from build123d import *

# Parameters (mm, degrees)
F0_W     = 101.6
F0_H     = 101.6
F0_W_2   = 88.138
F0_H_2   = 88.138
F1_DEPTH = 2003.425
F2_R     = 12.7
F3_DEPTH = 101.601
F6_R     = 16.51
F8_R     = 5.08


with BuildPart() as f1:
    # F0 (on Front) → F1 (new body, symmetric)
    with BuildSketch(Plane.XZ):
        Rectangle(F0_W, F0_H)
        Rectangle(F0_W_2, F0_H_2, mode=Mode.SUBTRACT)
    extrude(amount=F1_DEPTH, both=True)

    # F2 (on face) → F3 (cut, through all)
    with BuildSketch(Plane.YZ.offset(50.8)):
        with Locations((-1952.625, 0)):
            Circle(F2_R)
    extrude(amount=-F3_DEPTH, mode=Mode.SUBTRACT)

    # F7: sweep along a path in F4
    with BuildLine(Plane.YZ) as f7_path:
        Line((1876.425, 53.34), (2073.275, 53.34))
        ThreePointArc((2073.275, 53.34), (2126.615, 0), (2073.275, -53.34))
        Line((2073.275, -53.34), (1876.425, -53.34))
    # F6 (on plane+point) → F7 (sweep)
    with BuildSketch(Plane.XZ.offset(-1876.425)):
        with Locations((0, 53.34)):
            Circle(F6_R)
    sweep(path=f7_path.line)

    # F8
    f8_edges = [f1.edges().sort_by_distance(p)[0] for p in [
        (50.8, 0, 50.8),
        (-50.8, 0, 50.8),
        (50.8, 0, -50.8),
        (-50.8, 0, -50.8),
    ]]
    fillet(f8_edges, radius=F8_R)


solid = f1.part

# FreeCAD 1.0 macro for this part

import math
import FreeCAD as App
import Part
import Sketcher
Q = App.Units.Quantity


def edges_at(feature, points):
    """Names of the edges that pass closest to the given points."""
    edges = feature.Shape.Edges
    near = lambda p: min(range(len(edges)), key=lambda i: edges[i].distToShape(Part.Vertex(*p))[0])
    return sorted({f"Edge{near(p) + 1}" for p in points})

doc = App.newDocument("Part")
body = doc.addObject("PartDesign::Body", "Body")

# Sketch on XZ plane
sketch1 = body.newObject("Sketcher::SketchObject", "Sketch")
sketch1.AttachmentSupport = (doc.getObject("XZ_Plane"), [""])
sketch1.MapMode = "FlatFace"
sketch1.addGeometry([
    Part.LineSegment(App.Vector(-50.8, 50.8, 0), App.Vector(-50.8, -50.8, 0)),  # 0
    Part.LineSegment(App.Vector(-50.8, -50.8, 0), App.Vector(50.8, -50.8, 0)),  # 1
    Part.LineSegment(App.Vector(50.8, -50.8, 0), App.Vector(50.8, 50.8, 0)),  # 2
    Part.LineSegment(App.Vector(50.8, 50.8, 0), App.Vector(-50.8, 50.8, 0)),  # 3
    Part.LineSegment(App.Vector(44.069, -44.069, 0), App.Vector(-44.069, -44.069, 0)),  # 4
    Part.LineSegment(App.Vector(-44.069, -44.069, 0), App.Vector(-44.069, 44.069, 0)),  # 5
    Part.LineSegment(App.Vector(-44.069, 44.069, 0), App.Vector(44.069, 44.069, 0)),  # 6
    Part.LineSegment(App.Vector(44.069, 44.069, 0), App.Vector(44.069, -44.069, 0)),  # 7
], False)
sketch1.addConstraint([
    Sketcher.Constraint("Coincident", 0, 2, 1, 1),
    Sketcher.Constraint("Coincident", 1, 2, 2, 1),
    Sketcher.Constraint("Coincident", 2, 2, 3, 1),
    Sketcher.Constraint("Coincident", 3, 2, 0, 1),
    Sketcher.Constraint("Coincident", 4, 2, 5, 1),
    Sketcher.Constraint("Coincident", 5, 2, 6, 1),
    Sketcher.Constraint("Coincident", 6, 2, 7, 1),
    Sketcher.Constraint("Coincident", 7, 2, 4, 1),
    Sketcher.Constraint("Vertical", 0),
    Sketcher.Constraint("Horizontal", 1),
    Sketcher.Constraint("Vertical", 2),
    Sketcher.Constraint("Horizontal", 3),
    Sketcher.Constraint("Horizontal", 4),
    Sketcher.Constraint("Vertical", 5),
    Sketcher.Constraint("Horizontal", 6),
    Sketcher.Constraint("Vertical", 7),
    Sketcher.Constraint("Symmetric", 0, 2, 2, 2, -1, 1),
    Sketcher.Constraint("Symmetric", 4, 2, 6, 2, -1, 1),
    Sketcher.Constraint("Equal", 3, 0),
    Sketcher.Constraint("Equal", 6, 5),
    Sketcher.Constraint("DistanceX", 1, 1, 1, 2, Q("4 in")),
    Sketcher.Constraint("DistanceX", 4, 2, 4, 1, Q("3.47 in")),
])
pad1 = body.newObject("PartDesign::Pad", "Pad")
pad1.Profile = sketch1
pad1.Length = Q("157.75 in")
pad1.Midplane = True

# Sketch on YZ plane
sketch2 = body.newObject("Sketcher::SketchObject", "Sketch001")
sketch2.AttachmentSupport = (doc.getObject("YZ_Plane"), [""])
sketch2.MapMode = "FlatFace"
sketch2.AttachmentOffset = App.Placement(App.Vector(0, 0, 2 * 25.4), App.Rotation())
sketch2.addGeometry(Part.Circle(App.Vector(-1952.625, 0, 0), App.Vector(0, 0, 1), 12.7), False)
sketch2.addConstraint([
    Sketcher.Constraint("PointOnObject", 0, 3, -1),
    Sketcher.Constraint("Diameter", 0, Q("1 in")),
    Sketcher.Constraint("DistanceX", 0, 3, -1, 1, Q("76.875 in")),
])
pocket1 = body.newObject("PartDesign::Pocket", "Pocket")
pocket1.Profile = sketch2
pocket1.Type = "ThroughAll"

# Sketch on XZ plane
sketch3 = body.newObject("Sketcher::SketchObject", "Sketch002")
sketch3.AttachmentSupport = (doc.getObject("XZ_Plane"), [""])
sketch3.MapMode = "FlatFace"
sketch3.AttachmentOffset = App.Placement(App.Vector(0, 0, -73.875 * 25.4), App.Rotation())
sketch3.addGeometry(Part.Circle(App.Vector(0, 53.34, 0), App.Vector(0, 0, 1), 16.51), False)
sketch3.addConstraint([
    Sketcher.Constraint("PointOnObject", 0, 3, -2),
    Sketcher.Constraint("Diameter", 0, Q("1.3 in")),
    Sketcher.Constraint("DistanceY", -1, 1, 0, 3, Q("2.1 in")),
])

# Sketch on YZ plane
sketch4 = body.newObject("Sketcher::SketchObject", "Sketch003")
sketch4.AttachmentSupport = (doc.getObject("YZ_Plane"), [""])
sketch4.MapMode = "FlatFace"
sketch4.addGeometry([
    Part.LineSegment(App.Vector(1876.425, 53.34, 0), App.Vector(2073.275, 53.34, 0)),
    Part.ArcOfCircle(Part.Circle(App.Vector(2073.275, 0, 0), App.Vector(0, 0, 1), 53.34), math.radians(-90), math.radians(90)),
    Part.LineSegment(App.Vector(2073.275, -53.34, 0), App.Vector(1876.425, -53.34, 0)),
], False)
sketch4.addConstraint([
    Sketcher.Constraint("Tangent", 0, 2, 1, 2),
    Sketcher.Constraint("Tangent", 1, 1, 2, 1),
    Sketcher.Constraint("Horizontal", 0),
    Sketcher.Constraint("Horizontal", 2),
    Sketcher.Constraint("Symmetric", 0, 1, 2, 2, -1),
    Sketcher.Constraint("Radius", 1, Q("2.1 in")),
    Sketcher.Constraint("DistanceX", 0, 1, 0, 2, Q("7.75 in")),
    Sketcher.Constraint("DistanceX", -1, 1, 1, 3, Q("81.625 in")),
])
doc.recompute()

additivepipe = body.newObject("PartDesign::AdditivePipe", "AdditivePipe")
additivepipe.Profile = sketch3
additivepipe.Spine = (sketch4, ["Edge1", "Edge2", "Edge3"])
doc.recompute()

fillet = body.newObject("PartDesign::Fillet", "Fillet")
fillet.Base = (additivepipe, edges_at(additivepipe, [
    (50.8, 0, 50.8),
    (-50.8, 0, 50.8),
    (50.8, 0, -50.8),
    (-50.8, 0, -50.8),
]))
fillet.Radius = Q("0.2 in")

doc.recompute()
